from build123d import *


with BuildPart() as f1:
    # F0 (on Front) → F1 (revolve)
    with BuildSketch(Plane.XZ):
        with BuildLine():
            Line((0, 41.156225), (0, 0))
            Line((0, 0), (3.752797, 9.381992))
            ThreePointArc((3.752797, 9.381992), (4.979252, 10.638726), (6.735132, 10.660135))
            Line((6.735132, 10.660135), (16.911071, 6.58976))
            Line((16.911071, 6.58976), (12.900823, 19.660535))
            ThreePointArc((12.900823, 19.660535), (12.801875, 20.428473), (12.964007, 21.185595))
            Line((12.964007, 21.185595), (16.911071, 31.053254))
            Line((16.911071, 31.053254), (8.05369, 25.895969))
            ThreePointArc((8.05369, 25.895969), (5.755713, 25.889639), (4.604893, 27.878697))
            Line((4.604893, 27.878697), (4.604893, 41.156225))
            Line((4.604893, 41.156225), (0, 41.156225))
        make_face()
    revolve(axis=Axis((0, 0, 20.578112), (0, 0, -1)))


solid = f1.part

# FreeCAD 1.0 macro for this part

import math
import FreeCAD as App
import Part
import Sketcher

doc = App.newDocument("Part")
body = doc.addObject("PartDesign::Body", "Body")

# Sketch on XZ plane
sketch1 = doc.addObject("Sketcher::SketchObject", "Sketch")
body.addObject(sketch1)
sketch1.AttachmentSupport = (doc.XZ_Plane, [""])
sketch1.MapMode = "FlatFace"
sketch1.addGeometry([
    Part.LineSegment(App.Vector(0, 41.156225, 0), App.Vector(0, 0, 0)),  # 0
    Part.LineSegment(App.Vector(0, 0, 0), App.Vector(3.752797, 9.381992, 0)),  # 1
    Part.ArcOfCircle(Part.Circle(App.Vector(5.883035, 8.529899, 0), App.Vector(0, 0, 1), 2.294336), math.radians(68.198533), math.radians(158.19863)),  # 2
    Part.LineSegment(App.Vector(6.735132, 10.660135, 0), App.Vector(16.911071, 6.58976, 0)),  # 3
    Part.LineSegment(App.Vector(16.911071, 6.58976, 0), App.Vector(12.900823, 19.660535, 0)),  # 4
    Part.ArcOfCircle(Part.Circle(App.Vector(15.094248, 20.333499, 0), App.Vector(0, 0, 1), 2.29434), math.radians(158.198604), math.radians(197.056524)),  # 5
    Part.LineSegment(App.Vector(12.964007, 21.185595, 0), App.Vector(16.911071, 31.053254, 0)),  # 6
    Part.LineSegment(App.Vector(16.911071, 31.053254, 0), App.Vector(8.05369, 25.895969, 0)),  # 7
    Part.ArcOfCircle(Part.Circle(App.Vector(6.899231, 27.878698, 0), App.Vector(0, 0, 1), 2.294338), math.radians(-179.999987), math.radians(-59.789569)),  # 8
    Part.LineSegment(App.Vector(4.604893, 27.878697, 0), App.Vector(4.604893, 41.156225, 0)),  # 9
    Part.LineSegment(App.Vector(4.604893, 41.156225, 0), App.Vector(0, 41.156225, 0)),  # 10
], False)
sketch1.addConstraint([
    Sketcher.Constraint("Coincident", 0, 2, 1, 1),
    Sketcher.Constraint("Coincident", 1, 2, 2, 2),
    Sketcher.Constraint("Coincident", 2, 1, 3, 1),
    Sketcher.Constraint("Coincident", 3, 2, 4, 1),
    Sketcher.Constraint("Coincident", 4, 2, 5, 2),
    Sketcher.Constraint("Coincident", 5, 1, 6, 1),
    Sketcher.Constraint("Coincident", 6, 2, 7, 1),
    Sketcher.Constraint("Coincident", 7, 2, 8, 2),
    Sketcher.Constraint("Coincident", 8, 1, 9, 1),
    Sketcher.Constraint("Coincident", 9, 2, 10, 1),
    Sketcher.Constraint("Coincident", 10, 2, 0, 1),
    Sketcher.Constraint("Vertical", 0),
    Sketcher.Constraint("Vertical", 9),
    Sketcher.Constraint("Horizontal", 10),
    Sketcher.Constraint("Coincident", 0, 2, -1, 1),
    Sketcher.Constraint("Radius", 5, 2.29434),
    Sketcher.Constraint("Radius", 8, 2.294338),
    Sketcher.Constraint("Radius", 2, 2.294336),
    Sketcher.Constraint("DistanceY", -1, 1, 2, 3, 8.529899),
    Sketcher.Constraint("DistanceY", -1, 1, 5, 3, 20.333499),
    Sketcher.Constraint("DistanceY", 5, 3, 8, 3, 7.545198),
    Sketcher.Constraint("DistanceX", 2, 1, 8, 3, 0.164099),
    Sketcher.Constraint("DistanceY", 2, 1, 4, 2, 9.0004),
    Sketcher.Constraint("Distance", 3, 10.959821),
    Sketcher.Constraint("Distance", 7, 10.249429),
    Sketcher.Constraint("DistanceX", 10, 2, 10, 1, 4.604893),
    Sketcher.Constraint("DistanceY", 0, 2, 0, 1, 41.156225),
    Sketcher.Constraint("DistanceY", 9, 1, 9, 2, 13.277528),
    Sketcher.Constraint("DistanceX", -1, 1, 5, 3, 15.094248),
    Sketcher.Constraint("DistanceX", -1, 1, 3, 2, 16.911071),
    Sketcher.Constraint("DistanceY", -1, 1, 3, 2, 6.58976),
    Sketcher.Constraint("DistanceX", -1, 1, 6, 2, 16.911071),
    Sketcher.Constraint("DistanceX", -1, 1, 7, 2, 8.05369),
    Sketcher.Constraint("DistanceX", 1, 2, 5, 3, 11.341451),
    Sketcher.Constraint("DistanceY", 4, 2, 5, 1, 1.52506),
])
revolution = doc.addObject("PartDesign::Revolution", "Revolution")
body.addObject(revolution)
revolution.Profile = sketch1
revolution.ReferenceAxis = (sketch1, ["V_Axis"])
revolution.Angle = 360

doc.recompute()
